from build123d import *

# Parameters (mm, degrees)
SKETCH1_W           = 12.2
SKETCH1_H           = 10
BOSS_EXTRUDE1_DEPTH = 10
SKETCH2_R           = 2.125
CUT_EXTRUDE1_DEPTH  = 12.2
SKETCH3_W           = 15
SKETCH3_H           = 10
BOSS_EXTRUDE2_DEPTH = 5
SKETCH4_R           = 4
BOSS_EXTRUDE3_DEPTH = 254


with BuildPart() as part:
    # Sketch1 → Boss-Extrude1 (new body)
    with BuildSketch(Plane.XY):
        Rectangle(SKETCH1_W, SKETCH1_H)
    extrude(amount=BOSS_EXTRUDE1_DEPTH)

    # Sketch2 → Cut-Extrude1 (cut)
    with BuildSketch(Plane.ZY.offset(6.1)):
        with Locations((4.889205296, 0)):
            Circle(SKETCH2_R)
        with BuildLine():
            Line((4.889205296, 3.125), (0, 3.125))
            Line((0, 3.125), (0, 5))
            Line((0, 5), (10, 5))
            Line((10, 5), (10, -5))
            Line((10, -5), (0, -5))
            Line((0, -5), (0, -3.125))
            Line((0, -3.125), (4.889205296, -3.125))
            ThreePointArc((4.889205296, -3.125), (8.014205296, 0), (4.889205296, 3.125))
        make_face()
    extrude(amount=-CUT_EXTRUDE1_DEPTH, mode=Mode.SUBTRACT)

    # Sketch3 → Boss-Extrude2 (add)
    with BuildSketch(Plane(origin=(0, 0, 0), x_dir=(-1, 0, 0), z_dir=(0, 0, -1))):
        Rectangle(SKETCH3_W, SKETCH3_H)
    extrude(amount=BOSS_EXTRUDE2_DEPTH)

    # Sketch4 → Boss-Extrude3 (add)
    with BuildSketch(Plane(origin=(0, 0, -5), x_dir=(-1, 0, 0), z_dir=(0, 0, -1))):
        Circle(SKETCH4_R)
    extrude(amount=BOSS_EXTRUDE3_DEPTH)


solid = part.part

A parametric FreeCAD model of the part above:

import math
import FreeCAD as App
import Part
import Sketcher
from FreeCAD import Vector
Q = App.Units.Quantity


def add_polygon(sketch, points):
    """Adds a closed chain of lines whose ends are joined by coincident constraints."""
    first, n = sketch.GeometryCount, len(points)
    for a, b in zip(points, points[1:] + points[:1]):
        sketch.addGeometry(Part.LineSegment(App.Vector(*a, 0), App.Vector(*b, 0)), False)
    for i in range(n):
        sketch.addConstraint(Sketcher.Constraint("Coincident", first + i, 2, first + (i + 1) % n, 1))

doc = App.newDocument("Part")
body = doc.addObject("PartDesign::Body", "Body")

sketch1 = body.newObject("Sketcher::SketchObject", "Sketch")
sketch1.AttachmentSupport = (doc.getObject("XY_Plane"), [""])
sketch1.MapMode = "FlatFace"
add_polygon(sketch1, [(-6, 5), (-6, -5), (6, -5), (6, 5)])
sketch1.addConstraint(Sketcher.Constraint("Vertical", 0))
sketch1.addConstraint(Sketcher.Constraint("Horizontal", 1))
sketch1.addConstraint(Sketcher.Constraint("Vertical", 2))
sketch1.addConstraint(Sketcher.Constraint("Horizontal", 3))
sketch1.addConstraint(Sketcher.Constraint("Symmetric", 0, 2, 2, 2, -1, 1))
sketch1.addConstraint(Sketcher.Constraint("DistanceY", 0, 2, 0, 1, Q("10 mm")))
sketch1.addConstraint(Sketcher.Constraint("DistanceX", 1, 1, 1, 2, Q("12.2 mm")))
pad1 = body.newObject("PartDesign::Pad", "Pad")
pad1.Profile = sketch1
pad1.Length = 10

sketch2 = body.newObject("Sketcher::SketchObject", "Sketch001")
sketch2.AttachmentSupport = (doc.getObject("YZ_Plane"), [""])
sketch2.MapMode = "FlatFace"
sketch2.AttachmentOffset = App.Placement(Vector(0, 0, -6.1), App.Rotation())
sketch2.addGeometry(Part.Circle(Vector(0, 4.9, 0), Vector(0, 0, 1), 2.1), False)
sketch2.addGeometry(Part.LineSegment(Vector(3.1, 0, 0), Vector(3.1, 4.9, 0)), False)
sketch2.addGeometry(Part.ArcOfCircle(Part.Circle(Vector(0, 4.9, 0), Vector(0, 0, 1), 3.1), math.radians(0), math.radians(180)), False)
sketch2.addGeometry(Part.LineSegment(Vector(-3.1, 4.9, 0), Vector(-3.1, 0, 0)), False)
sketch2.addGeometry(Part.LineSegment(Vector(-3.1, 0, 0), Vector(-5, 0, 0)), False)
sketch2.addGeometry(Part.LineSegment(Vector(-5, 0, 0), Vector(-5, 10, 0)), False)
sketch2.addGeometry(Part.LineSegment(Vector(-5, 10, 0), Vector(5, 10, 0)), False)
sketch2.addGeometry(Part.LineSegment(Vector(5, 10, 0), Vector(5, 0, 0)), False)
sketch2.addGeometry(Part.LineSegment(Vector(5, 0, 0), Vector(3.1, 0, 0)), False)
sketch2.addConstraint(Sketcher.Constraint("Tangent", 1, 2, 2, 1))
sketch2.addConstraint(Sketcher.Constraint("Tangent", 2, 2, 3, 1))
sketch2.addConstraint(Sketcher.Constraint("Coincident", 3, 2, 4, 1))
sketch2.addConstraint(Sketcher.Constraint("Coincident", 4, 2, 5, 1))
sketch2.addConstraint(Sketcher.Constraint("Coincident", 5, 2, 6, 1))
sketch2.addConstraint(Sketcher.Constraint("Coincident", 6, 2, 7, 1))
sketch2.addConstraint(Sketcher.Constraint("Coincident", 7, 2, 8, 1))
sketch2.addConstraint(Sketcher.Constraint("Coincident", 8, 2, 1, 1))
sketch2.addConstraint(Sketcher.Constraint("Vertical", 1))
sketch2.addConstraint(Sketcher.Constraint("Vertical", 3))
sketch2.addConstraint(Sketcher.Constraint("Horizontal", 4))
sketch2.addConstraint(Sketcher.Constraint("Vertical", 5))
sketch2.addConstraint(Sketcher.Constraint("Horizontal", 6))
sketch2.addConstraint(Sketcher.Constraint("Vertical", 7))
sketch2.addConstraint(Sketcher.Constraint("Horizontal", 8))
sketch2.addConstraint(Sketcher.Constraint("Coincident", 2, 3, 0, 3))
sketch2.addConstraint(Sketcher.Constraint("Symmetric", 4, 2, 7, 2, -1, 1))
sketch2.addConstraint(Sketcher.Constraint("Symmetric", 3, 2, 8, 2, -2))
sketch2.addConstraint(Sketcher.Constraint("Equal", 6, 5))
sketch2.addConstraint(Sketcher.Constraint("Diameter", 0, Q("4.25 mm")))
sketch2.addConstraint(Sketcher.Constraint("DistanceX", 6, 1, 6, 2, Q("10 mm")))
sketch2.addConstraint(Sketcher.Constraint("Radius", 2, Q("3.125 mm")))
sketch2.addConstraint(Sketcher.Constraint("DistanceY", 1, 1, 1, 2, Q("4.889205 mm")))
pocket1 = body.newObject("PartDesign::Pocket", "Pocket")
pocket1.Profile = sketch2
pocket1.Length = 12.2
pocket1.Reversed = True

sketch3 = body.newObject("Sketcher::SketchObject", "Sketch002")
sketch3.AttachmentSupport = (doc.getObject("XY_Plane"), [""])
sketch3.MapMode = "FlatFace"
add_polygon(sketch3, [(8, 5), (8, -5), (-8, -5), (-8, 5)])
sketch3.addConstraint(Sketcher.Constraint("Vertical", 0))
sketch3.addConstraint(Sketcher.Constraint("Horizontal", 1))
sketch3.addConstraint(Sketcher.Constraint("Vertical", 2))
sketch3.addConstraint(Sketcher.Constraint("Horizontal", 3))
sketch3.addConstraint(Sketcher.Constraint("Symmetric", 0, 2, 2, 2, -1, 1))
sketch3.addConstraint(Sketcher.Constraint("DistanceX", 1, 2, 1, 1, Q("15 mm")))
sketch3.addConstraint(Sketcher.Constraint("DistanceY", 0, 2, 0, 1, Q("10 mm")))
pad2 = body.newObject("PartDesign::Pad", "Pad001")
pad2.Profile = sketch3
pad2.Length = 5
pad2.Reversed = True

sketch4 = body.newObject("Sketcher::SketchObject", "Sketch003")
sketch4.AttachmentSupport = (doc.getObject("XY_Plane"), [""])
sketch4.MapMode = "FlatFace"
sketch4.AttachmentOffset = App.Placement(Vector(0, 0, -5), App.Rotation())
sketch4.addGeometry(Part.Circle(Vector(0, 0, 0), Vector(0, 0, 1), 4), False)
sketch4.addConstraint(Sketcher.Constraint("Coincident", 0, 3, -1, 1))
sketch4.addConstraint(Sketcher.Constraint("Diameter", 0, Q("8 mm")))
pad3 = body.newObject("PartDesign::Pad", "Pad002")
pad3.Profile = sketch4
pad3.Length = 254
pad3.Reversed = True

doc.recompute()
